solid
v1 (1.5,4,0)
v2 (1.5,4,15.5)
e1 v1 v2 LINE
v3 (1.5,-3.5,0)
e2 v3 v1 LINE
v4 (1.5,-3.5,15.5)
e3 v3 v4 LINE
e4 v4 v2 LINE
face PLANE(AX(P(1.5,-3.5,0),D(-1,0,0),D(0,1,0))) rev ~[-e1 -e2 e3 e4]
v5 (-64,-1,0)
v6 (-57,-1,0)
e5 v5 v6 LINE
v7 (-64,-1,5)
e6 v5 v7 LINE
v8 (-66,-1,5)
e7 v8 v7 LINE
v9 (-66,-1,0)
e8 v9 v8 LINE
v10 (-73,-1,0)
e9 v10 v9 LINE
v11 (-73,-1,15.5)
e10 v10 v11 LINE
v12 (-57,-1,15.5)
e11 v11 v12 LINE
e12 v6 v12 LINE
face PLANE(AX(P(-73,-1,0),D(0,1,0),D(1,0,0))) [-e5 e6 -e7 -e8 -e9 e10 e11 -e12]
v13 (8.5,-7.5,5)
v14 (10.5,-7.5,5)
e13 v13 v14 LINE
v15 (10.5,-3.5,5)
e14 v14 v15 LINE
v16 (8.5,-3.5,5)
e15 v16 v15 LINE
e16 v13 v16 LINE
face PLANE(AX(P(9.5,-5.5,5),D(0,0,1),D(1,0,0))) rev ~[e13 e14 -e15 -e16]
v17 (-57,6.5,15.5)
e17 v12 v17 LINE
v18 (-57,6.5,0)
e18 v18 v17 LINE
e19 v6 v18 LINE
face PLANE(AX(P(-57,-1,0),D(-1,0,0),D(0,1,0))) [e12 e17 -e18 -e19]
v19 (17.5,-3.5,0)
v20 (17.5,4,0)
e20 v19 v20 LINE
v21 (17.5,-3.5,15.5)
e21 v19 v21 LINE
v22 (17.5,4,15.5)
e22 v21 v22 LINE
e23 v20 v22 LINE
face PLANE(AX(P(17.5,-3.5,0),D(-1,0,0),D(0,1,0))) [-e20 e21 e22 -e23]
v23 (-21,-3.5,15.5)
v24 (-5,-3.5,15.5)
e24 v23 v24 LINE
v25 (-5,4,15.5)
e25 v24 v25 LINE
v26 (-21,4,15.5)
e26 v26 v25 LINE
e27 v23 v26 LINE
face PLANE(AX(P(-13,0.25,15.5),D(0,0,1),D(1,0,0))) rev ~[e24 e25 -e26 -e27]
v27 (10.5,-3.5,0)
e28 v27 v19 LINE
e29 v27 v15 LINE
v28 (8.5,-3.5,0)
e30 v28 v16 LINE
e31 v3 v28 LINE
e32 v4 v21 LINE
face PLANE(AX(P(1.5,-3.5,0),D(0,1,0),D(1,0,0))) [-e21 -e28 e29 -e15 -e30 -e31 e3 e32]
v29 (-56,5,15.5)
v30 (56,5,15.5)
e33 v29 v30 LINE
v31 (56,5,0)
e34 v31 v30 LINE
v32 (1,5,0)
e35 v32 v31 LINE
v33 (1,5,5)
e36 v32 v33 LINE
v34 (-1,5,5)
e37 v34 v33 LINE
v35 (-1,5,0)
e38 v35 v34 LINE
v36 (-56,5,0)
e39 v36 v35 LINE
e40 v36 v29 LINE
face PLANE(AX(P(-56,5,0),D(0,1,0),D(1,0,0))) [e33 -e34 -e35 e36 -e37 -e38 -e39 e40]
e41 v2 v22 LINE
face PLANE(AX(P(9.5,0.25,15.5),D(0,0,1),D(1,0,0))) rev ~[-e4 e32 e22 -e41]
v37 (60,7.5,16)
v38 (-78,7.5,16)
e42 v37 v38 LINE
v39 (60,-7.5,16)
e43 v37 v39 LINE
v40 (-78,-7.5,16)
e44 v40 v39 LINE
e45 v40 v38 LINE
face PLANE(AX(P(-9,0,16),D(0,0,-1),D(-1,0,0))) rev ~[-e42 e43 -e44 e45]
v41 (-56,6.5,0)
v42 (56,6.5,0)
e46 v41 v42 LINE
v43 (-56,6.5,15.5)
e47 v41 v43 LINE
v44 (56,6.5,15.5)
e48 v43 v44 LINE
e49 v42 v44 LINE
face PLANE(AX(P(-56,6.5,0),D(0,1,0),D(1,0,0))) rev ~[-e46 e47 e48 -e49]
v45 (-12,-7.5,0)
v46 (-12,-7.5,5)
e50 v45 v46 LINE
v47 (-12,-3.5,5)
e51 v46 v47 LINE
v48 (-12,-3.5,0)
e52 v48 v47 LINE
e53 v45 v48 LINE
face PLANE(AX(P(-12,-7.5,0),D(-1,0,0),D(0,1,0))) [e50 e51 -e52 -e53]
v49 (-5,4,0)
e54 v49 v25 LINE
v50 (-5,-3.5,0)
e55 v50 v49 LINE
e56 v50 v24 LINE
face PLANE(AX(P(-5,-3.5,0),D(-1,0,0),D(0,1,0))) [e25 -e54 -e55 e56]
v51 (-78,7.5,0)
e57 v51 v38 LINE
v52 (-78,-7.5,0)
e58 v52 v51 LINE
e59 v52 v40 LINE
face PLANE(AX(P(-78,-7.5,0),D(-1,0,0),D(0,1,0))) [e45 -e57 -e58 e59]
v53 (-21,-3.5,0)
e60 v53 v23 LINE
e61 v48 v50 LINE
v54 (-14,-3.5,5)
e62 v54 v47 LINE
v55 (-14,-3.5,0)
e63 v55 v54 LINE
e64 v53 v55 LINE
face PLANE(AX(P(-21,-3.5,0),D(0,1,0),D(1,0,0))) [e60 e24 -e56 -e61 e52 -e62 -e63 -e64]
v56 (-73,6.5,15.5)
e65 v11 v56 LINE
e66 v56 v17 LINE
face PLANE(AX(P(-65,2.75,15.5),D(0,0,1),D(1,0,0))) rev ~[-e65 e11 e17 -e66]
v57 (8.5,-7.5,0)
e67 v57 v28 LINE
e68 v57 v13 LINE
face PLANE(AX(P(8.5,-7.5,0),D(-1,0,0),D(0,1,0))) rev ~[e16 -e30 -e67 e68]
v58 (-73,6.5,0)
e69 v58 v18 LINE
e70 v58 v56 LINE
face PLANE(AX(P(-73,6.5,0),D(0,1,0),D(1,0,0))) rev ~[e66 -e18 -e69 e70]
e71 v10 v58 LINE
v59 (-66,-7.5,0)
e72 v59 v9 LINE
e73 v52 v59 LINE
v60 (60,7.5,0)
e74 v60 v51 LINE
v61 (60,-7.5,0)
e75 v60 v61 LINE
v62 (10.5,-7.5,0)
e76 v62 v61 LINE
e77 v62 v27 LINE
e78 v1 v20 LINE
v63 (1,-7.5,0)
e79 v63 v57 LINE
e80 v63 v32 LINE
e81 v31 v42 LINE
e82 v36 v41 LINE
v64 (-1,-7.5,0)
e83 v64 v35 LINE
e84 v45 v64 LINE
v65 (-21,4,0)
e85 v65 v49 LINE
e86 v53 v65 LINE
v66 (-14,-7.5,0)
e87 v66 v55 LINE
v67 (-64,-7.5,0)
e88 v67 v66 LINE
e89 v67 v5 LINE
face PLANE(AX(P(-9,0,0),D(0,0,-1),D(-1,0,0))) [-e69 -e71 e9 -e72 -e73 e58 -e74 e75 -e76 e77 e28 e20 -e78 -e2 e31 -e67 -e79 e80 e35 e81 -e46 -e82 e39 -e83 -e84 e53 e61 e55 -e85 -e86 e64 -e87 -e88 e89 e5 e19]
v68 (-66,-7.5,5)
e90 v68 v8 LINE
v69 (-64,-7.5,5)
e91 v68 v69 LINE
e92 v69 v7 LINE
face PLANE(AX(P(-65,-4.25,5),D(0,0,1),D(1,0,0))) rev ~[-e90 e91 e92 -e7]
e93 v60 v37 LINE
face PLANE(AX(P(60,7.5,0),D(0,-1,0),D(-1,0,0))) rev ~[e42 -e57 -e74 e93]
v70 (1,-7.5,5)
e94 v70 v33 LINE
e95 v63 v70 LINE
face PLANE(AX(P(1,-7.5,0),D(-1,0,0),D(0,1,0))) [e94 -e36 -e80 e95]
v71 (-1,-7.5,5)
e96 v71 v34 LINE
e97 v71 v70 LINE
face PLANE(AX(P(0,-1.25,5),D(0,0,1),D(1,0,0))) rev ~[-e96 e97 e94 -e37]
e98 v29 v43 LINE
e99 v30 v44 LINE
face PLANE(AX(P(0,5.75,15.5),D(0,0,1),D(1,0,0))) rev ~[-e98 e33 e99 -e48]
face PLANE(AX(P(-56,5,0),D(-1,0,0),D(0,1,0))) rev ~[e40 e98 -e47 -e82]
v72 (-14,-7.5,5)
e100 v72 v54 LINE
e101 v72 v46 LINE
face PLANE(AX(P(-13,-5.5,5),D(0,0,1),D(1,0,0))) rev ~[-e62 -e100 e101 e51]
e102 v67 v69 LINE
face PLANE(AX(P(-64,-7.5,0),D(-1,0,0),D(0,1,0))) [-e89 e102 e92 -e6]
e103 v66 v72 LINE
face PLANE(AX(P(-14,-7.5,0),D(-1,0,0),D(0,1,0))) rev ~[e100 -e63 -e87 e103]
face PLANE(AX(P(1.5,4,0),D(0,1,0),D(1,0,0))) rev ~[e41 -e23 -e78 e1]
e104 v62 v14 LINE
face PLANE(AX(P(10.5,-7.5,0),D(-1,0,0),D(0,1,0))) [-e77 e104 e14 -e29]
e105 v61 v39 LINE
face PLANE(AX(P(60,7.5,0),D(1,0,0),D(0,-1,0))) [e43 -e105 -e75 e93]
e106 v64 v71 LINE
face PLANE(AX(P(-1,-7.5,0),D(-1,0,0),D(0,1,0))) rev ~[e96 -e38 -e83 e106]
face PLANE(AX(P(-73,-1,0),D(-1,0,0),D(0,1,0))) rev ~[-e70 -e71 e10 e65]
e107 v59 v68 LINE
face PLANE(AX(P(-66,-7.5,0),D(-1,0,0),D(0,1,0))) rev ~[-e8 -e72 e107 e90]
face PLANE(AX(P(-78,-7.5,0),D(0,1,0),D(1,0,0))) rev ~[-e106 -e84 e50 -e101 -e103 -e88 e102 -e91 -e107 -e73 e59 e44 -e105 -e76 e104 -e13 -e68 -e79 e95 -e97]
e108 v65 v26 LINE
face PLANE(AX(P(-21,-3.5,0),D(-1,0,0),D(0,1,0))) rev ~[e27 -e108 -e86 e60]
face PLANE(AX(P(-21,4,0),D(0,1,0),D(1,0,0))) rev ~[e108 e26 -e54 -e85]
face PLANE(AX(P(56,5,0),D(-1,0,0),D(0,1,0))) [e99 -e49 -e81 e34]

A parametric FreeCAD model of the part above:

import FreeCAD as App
import Part
import Sketcher

doc = App.newDocument("Part")
body = doc.addObject("PartDesign::Body", "Body")

sketch1 = body.newObject("Sketcher::SketchObject", "Sketch")
sketch1.AttachmentSupport = (doc.getObject("XY_Plane"), [""])
sketch1.MapMode = "FlatFace"
sketch1.addGeometry([
    Part.LineSegment(App.Vector(60, 8, 0), App.Vector(-78, 8, 0)),
    Part.LineSegment(App.Vector(-78, 8, 0), App.Vector(-78, -8, 0)),
    Part.LineSegment(App.Vector(-78, -8, 0), App.Vector(60, -8, 0)),
    Part.LineSegment(App.Vector(60, -8, 0), App.Vector(60, 8, 0)),
], False)
sketch1.addConstraint([
    Sketcher.Constraint("Coincident", 0, 2, 1, 1),
    Sketcher.Constraint("Coincident", 1, 2, 2, 1),
    Sketcher.Constraint("Coincident", 2, 2, 3, 1),
    Sketcher.Constraint("Coincident", 3, 2, 0, 1),
    Sketcher.Constraint("Horizontal", 0),
    Sketcher.Constraint("Vertical", 1),
    Sketcher.Constraint("Horizontal", 2),
    Sketcher.Constraint("Vertical", 3),
    Sketcher.Constraint("DistanceX", 0, 2, 0, 1, 138.0),
    Sketcher.Constraint("DistanceY", 1, 2, 1, 1, 15.0),
    Sketcher.Constraint("DistanceX", 0, 2, -1, 1, 78.0),
    Sketcher.Constraint("DistanceY", -1, 1, 0, 2, 7.5),
])
pad1 = body.newObject("PartDesign::Pad", "Pad")
pad1.Profile = sketch1
pad1.Length = 16

sketch2 = body.newObject("Sketcher::SketchObject", "Sketch001")
sketch2.AttachmentSupport = (doc.getObject("XY_Plane"), [""])
sketch2.MapMode = "FlatFace"
sketch2.addGeometry([
    Part.LineSegment(App.Vector(-56, 6.5, 0), App.Vector(-56, 5, 0)),
    Part.LineSegment(App.Vector(-56, 5, 0), App.Vector(56, 5, 0)),
    Part.LineSegment(App.Vector(56, 5, 0), App.Vector(56, 6.5, 0)),
    Part.LineSegment(App.Vector(56, 6.5, 0), App.Vector(-56, 6.5, 0)),
    Part.LineSegment(App.Vector(1.5, 4, 0), App.Vector(1.5, -3.5, 0)),
    Part.LineSegment(App.Vector(1.5, -3.5, 0), App.Vector(17.5, -3.5, 0)),
    Part.LineSegment(App.Vector(17.5, -3.5, 0), App.Vector(17.5, 4, 0)),
    Part.LineSegment(App.Vector(17.5, 4, 0), App.Vector(1.5, 4, 0)),
    Part.LineSegment(App.Vector(-21, 4, 0), App.Vector(-21, -3.5, 0)),
    Part.LineSegment(App.Vector(-21, -3.5, 0), App.Vector(-5, -3.5, 0)),
    Part.LineSegment(App.Vector(-5, -3.5, 0), App.Vector(-5, 4, 0)),
    Part.LineSegment(App.Vector(-5, 4, 0), App.Vector(-21, 4, 0)),
    Part.LineSegment(App.Vector(-73, 6.5, 0), App.Vector(-73, -1, 0)),
    Part.LineSegment(App.Vector(-73, -1, 0), App.Vector(-57, -1, 0)),
    Part.LineSegment(App.Vector(-57, -1, 0), App.Vector(-57, 6.5, 0)),
    Part.LineSegment(App.Vector(-57, 6.5, 0), App.Vector(-73, 6.5, 0)),
], False)
sketch2.addConstraint([
    Sketcher.Constraint("Coincident", 0, 2, 1, 1),
    Sketcher.Constraint("Coincident", 1, 2, 2, 1),
    Sketcher.Constraint("Coincident", 2, 2, 3, 1),
    Sketcher.Constraint("Coincident", 3, 2, 0, 1),
    Sketcher.Constraint("Coincident", 4, 2, 5, 1),
    Sketcher.Constraint("Coincident", 5, 2, 6, 1),
    Sketcher.Constraint("Coincident", 6, 2, 7, 1),
    Sketcher.Constraint("Coincident", 7, 2, 4, 1),
    Sketcher.Constraint("Coincident", 8, 2, 9, 1),
    Sketcher.Constraint("Coincident", 9, 2, 10, 1),
    Sketcher.Constraint("Coincident", 10, 2, 11, 1),
    Sketcher.Constraint("Coincident", 11, 2, 8, 1),
    Sketcher.Constraint("Coincident", 12, 2, 13, 1),
    Sketcher.Constraint("Coincident", 13, 2, 14, 1),
    Sketcher.Constraint("Coincident", 14, 2, 15, 1),
    Sketcher.Constraint("Coincident", 15, 2, 12, 1),
    Sketcher.Constraint("Vertical", 0),
    Sketcher.Constraint("Horizontal", 1),
    Sketcher.Constraint("Vertical", 2),
    Sketcher.Constraint("Horizontal", 3),
    Sketcher.Constraint("Vertical", 4),
    Sketcher.Constraint("Horizontal", 5),
    Sketcher.Constraint("Vertical", 6),
    Sketcher.Constraint("Horizontal", 7),
    Sketcher.Constraint("Vertical", 8),
    Sketcher.Constraint("Horizontal", 9),
    Sketcher.Constraint("Vertical", 10),
    Sketcher.Constraint("Horizontal", 11),
    Sketcher.Constraint("Vertical", 12),
    Sketcher.Constraint("Horizontal", 13),
    Sketcher.Constraint("Vertical", 14),
    Sketcher.Constraint("Horizontal", 15),
    Sketcher.Constraint("Horizontal", 5, 2, 8, 2),
    Sketcher.Constraint("Horizontal", 7, 2, 10, 2),
    Sketcher.Constraint("Horizontal", 3, 2, 14, 2),
    Sketcher.Constraint("Equal", 7, 9),
    Sketcher.Constraint("Equal", 11, 13),
    Sketcher.Constraint("Equal", 10, 12),
    Sketcher.Constraint("DistanceX", 1, 1, 1, 2, 112.0),
    Sketcher.Constraint("DistanceX", 5, 1, 5, 2, 16.0),
    Sketcher.Constraint("DistanceY", 0, 2, 0, 1, 1.5),
    Sketcher.Constraint("DistanceY", 4, 2, 4, 1, 7.5),
    Sketcher.Constraint("DistanceX", 0, 2, -1, 1, 56.0),
    Sketcher.Constraint("DistanceY", -1, 1, 0, 2, 5.0),
    Sketcher.Constraint("DistanceY", -1, 1, 6, 2, 4.0),
    Sketcher.Constraint("DistanceX", 8, 2, -1, 1, 21.0),
    Sketcher.Constraint("DistanceX", 12, 2, -1, 1, 73.0),
    Sketcher.Constraint("DistanceX", -1, 1, 4, 2, 1.5),
])
pocket1 = body.newObject("PartDesign::Pocket", "Pocket")
pocket1.Profile = sketch2
pocket1.Length = 15.5
pocket1.Reversed = True

sketch3 = body.newObject("Sketcher::SketchObject", "Sketch002")
sketch3.AttachmentSupport = (doc.getObject("XY_Plane"), [""])
sketch3.MapMode = "FlatFace"
sketch3.addGeometry([
    Part.LineSegment(App.Vector(-1, 5, 0), App.Vector(-1, -7.5, 0)),
    Part.LineSegment(App.Vector(-1, -7.5, 0), App.Vector(1, -7.5, 0)),
    Part.LineSegment(App.Vector(1, -7.5, 0), App.Vector(1, 5, 0)),
    Part.LineSegment(App.Vector(1, 5, 0), App.Vector(-1, 5, 0)),
    Part.LineSegment(App.Vector(-14, -3.5, 0), App.Vector(-14, -7.5, 0)),
    Part.LineSegment(App.Vector(-14, -7.5, 0), App.Vector(-12, -7.5, 0)),
    Part.LineSegment(App.Vector(-12, -7.5, 0), App.Vector(-12, -3.5, 0)),
    Part.LineSegment(App.Vector(-12, -3.5, 0), App.Vector(-14, -3.5, 0)),
    Part.LineSegment(App.Vector(8.5, -3.5, 0), App.Vector(8.5, -7.5, 0)),
    Part.LineSegment(App.Vector(8.5, -7.5, 0), App.Vector(10.5, -7.5, 0)),
    Part.LineSegment(App.Vector(10.5, -7.5, 0), App.Vector(10.5, -3.5, 0)),
    Part.LineSegment(App.Vector(10.5, -3.5, 0), App.Vector(8.5, -3.5, 0)),
    Part.LineSegment(App.Vector(-66, -1, 0), App.Vector(-66, -7.5, 0)),
    Part.LineSegment(App.Vector(-66, -7.5, 0), App.Vector(-64, -7.5, 0)),
    Part.LineSegment(App.Vector(-64, -7.5, 0), App.Vector(-64, -1, 0)),
    Part.LineSegment(App.Vector(-64, -1, 0), App.Vector(-66, -1, 0)),
], False)
sketch3.addConstraint([
    Sketcher.Constraint("Coincident", 0, 2, 1, 1),
    Sketcher.Constraint("Coincident", 1, 2, 2, 1),
    Sketcher.Constraint("Coincident", 2, 2, 3, 1),
    Sketcher.Constraint("Coincident", 3, 2, 0, 1),
    Sketcher.Constraint("Coincident", 4, 2, 5, 1),
    Sketcher.Constraint("Coincident", 5, 2, 6, 1),
    Sketcher.Constraint("Coincident", 6, 2, 7, 1),
    Sketcher.Constraint("Coincident", 7, 2, 4, 1),
    Sketcher.Constraint("Coincident", 8, 2, 9, 1),
    Sketcher.Constraint("Coincident", 9, 2, 10, 1),
    Sketcher.Constraint("Coincident", 10, 2, 11, 1),
    Sketcher.Constraint("Coincident", 11, 2, 8, 1),
    Sketcher.Constraint("Coincident", 12, 2, 13, 1),
    Sketcher.Constraint("Coincident", 13, 2, 14, 1),
    Sketcher.Constraint("Coincident", 14, 2, 15, 1),
    Sketcher.Constraint("Coincident", 15, 2, 12, 1),
    Sketcher.Constraint("Vertical", 0),
    Sketcher.Constraint("Horizontal", 1),
    Sketcher.Constraint("Vertical", 2),
    Sketcher.Constraint("Horizontal", 3),
    Sketcher.Constraint("Vertical", 4),
    Sketcher.Constraint("Horizontal", 5),
    Sketcher.Constraint("Vertical", 6),
    Sketcher.Constraint("Horizontal", 7),
    Sketcher.Constraint("Vertical", 8),
    Sketcher.Constraint("Horizontal", 9),
    Sketcher.Constraint("Vertical", 10),
    Sketcher.Constraint("Horizontal", 11),
    Sketcher.Constraint("Vertical", 12),
    Sketcher.Constraint("Horizontal", 13),
    Sketcher.Constraint("Vertical", 14),
    Sketcher.Constraint("Horizontal", 15),
    Sketcher.Constraint("Horizontal", 1, 2, 4, 2),
    Sketcher.Constraint("Horizontal", 5, 2, 8, 2),
    Sketcher.Constraint("Horizontal", 7, 2, 10, 2),
    Sketcher.Constraint("Horizontal", 9, 2, 12, 2),
    Sketcher.Constraint("Equal", 3, 5),
    Sketcher.Constraint("Equal", 7, 9),
    Sketcher.Constraint("Equal", 11, 13),
    Sketcher.Constraint("DistanceX", 1, 1, 1, 2, 2.0),
    Sketcher.Constraint("DistanceY", 4, 2, 4, 1, 4.0),
    Sketcher.Constraint("DistanceY", 0, 2, 0, 1, 12.5),
    Sketcher.Constraint("DistanceY", 12, 2, 12, 1, 6.5),
    Sketcher.Constraint("DistanceX", 0, 2, -1, 1, 1.0),
    Sketcher.Constraint("DistanceY", -1, 1, 2, 2, 5.0),
    Sketcher.Constraint("DistanceX", 4, 2, -1, 1, 14.0),
    Sketcher.Constraint("DistanceX", 12, 2, -1, 1, 66.0),
    Sketcher.Constraint("DistanceX", -1, 1, 8, 2, 8.5),
])
pocket2 = body.newObject("PartDesign::Pocket", "Pocket001")
pocket2.Profile = sketch3
pocket2.Length = 5
pocket2.Reversed = True

doc.recompute()
